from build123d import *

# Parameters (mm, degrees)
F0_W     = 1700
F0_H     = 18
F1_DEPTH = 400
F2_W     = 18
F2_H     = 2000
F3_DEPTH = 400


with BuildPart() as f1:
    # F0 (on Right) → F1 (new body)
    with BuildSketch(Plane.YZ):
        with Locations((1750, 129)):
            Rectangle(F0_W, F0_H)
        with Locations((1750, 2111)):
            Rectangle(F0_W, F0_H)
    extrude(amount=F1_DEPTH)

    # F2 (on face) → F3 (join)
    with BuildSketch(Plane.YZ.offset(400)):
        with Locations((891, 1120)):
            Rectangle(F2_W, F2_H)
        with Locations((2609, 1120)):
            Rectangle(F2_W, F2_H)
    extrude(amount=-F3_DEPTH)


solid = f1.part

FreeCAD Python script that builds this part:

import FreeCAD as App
import Part
import Sketcher

doc = App.newDocument("Part")
body = doc.addObject("PartDesign::Body", "Body")
body.AllowCompound = True

# Sketch on YZ plane
sketch1 = doc.addObject("Sketcher::SketchObject", "Sketch")
body.addObject(sketch1)
sketch1.AttachmentSupport = (doc.YZ_Plane, [""])
sketch1.MapMode = "FlatFace"
sketch1.addGeometry(Part.LineSegment(App.Vector(900, 138, 0), App.Vector(900, 120, 0)), False)
sketch1.addGeometry(Part.LineSegment(App.Vector(900, 120, 0), App.Vector(2600, 120, 0)), False)
sketch1.addGeometry(Part.LineSegment(App.Vector(2600, 120, 0), App.Vector(2600, 138, 0)), False)
sketch1.addGeometry(Part.LineSegment(App.Vector(2600, 138, 0), App.Vector(900, 138, 0)), False)
sketch1.addGeometry(Part.LineSegment(App.Vector(900, 2120, 0), App.Vector(900, 2102, 0)), False)
sketch1.addGeometry(Part.LineSegment(App.Vector(900, 2102, 0), App.Vector(2600, 2102, 0)), False)
sketch1.addGeometry(Part.LineSegment(App.Vector(2600, 2102, 0), App.Vector(2600, 2120, 0)), False)
sketch1.addGeometry(Part.LineSegment(App.Vector(2600, 2120, 0), App.Vector(900, 2120, 0)), False)
sketch1.addConstraint(Sketcher.Constraint("Coincident", 0, 2, 1, 1))
sketch1.addConstraint(Sketcher.Constraint("Coincident", 1, 2, 2, 1))
sketch1.addConstraint(Sketcher.Constraint("Coincident", 2, 2, 3, 1))
sketch1.addConstraint(Sketcher.Constraint("Coincident", 3, 2, 0, 1))
sketch1.addConstraint(Sketcher.Constraint("Coincident", 4, 2, 5, 1))
sketch1.addConstraint(Sketcher.Constraint("Coincident", 5, 2, 6, 1))
sketch1.addConstraint(Sketcher.Constraint("Coincident", 6, 2, 7, 1))
sketch1.addConstraint(Sketcher.Constraint("Coincident", 7, 2, 4, 1))
sketch1.addConstraint(Sketcher.Constraint("Vertical", 0))
sketch1.addConstraint(Sketcher.Constraint("Horizontal", 1))
sketch1.addConstraint(Sketcher.Constraint("Vertical", 2))
sketch1.addConstraint(Sketcher.Constraint("Horizontal", 3))
sketch1.addConstraint(Sketcher.Constraint("Vertical", 4))
sketch1.addConstraint(Sketcher.Constraint("Horizontal", 5))
sketch1.addConstraint(Sketcher.Constraint("Vertical", 6))
sketch1.addConstraint(Sketcher.Constraint("Horizontal", 7))
sketch1.addConstraint(Sketcher.Constraint("Vertical", 3, 2, 4, 2))
sketch1.addConstraint(Sketcher.Constraint("Vertical", 2, 2, 5, 2))
sketch1.addConstraint(Sketcher.Constraint("Equal", 2, 4))
sketch1.addConstraint(Sketcher.Constraint("DistanceX", 1, 1, 1, 2, 1700.0))
sketch1.addConstraint(Sketcher.Constraint("DistanceY", 0, 2, 0, 1, 18.0))
sketch1.addConstraint(Sketcher.Constraint("DistanceX", -1, 1, 0, 2, 900.0))
sketch1.addConstraint(Sketcher.Constraint("DistanceY", -1, 1, 0, 2, 120.0))
sketch1.addConstraint(Sketcher.Constraint("DistanceY", -1, 1, 4, 2, 2102.0))
pad1 = doc.addObject("PartDesign::Pad", "Pad")
body.addObject(pad1)
pad1.Profile = sketch1
pad1.Length = 400

# Sketch on YZ plane
sketch2 = doc.addObject("Sketcher::SketchObject", "Sketch001")
body.addObject(sketch2)
sketch2.AttachmentSupport = (doc.YZ_Plane, [""])
sketch2.MapMode = "FlatFace"
sketch2.AttachmentOffset = App.Placement(App.Vector(0, 0, 400), App.Rotation())
sketch2.addGeometry(Part.LineSegment(App.Vector(882, 2120, 0), App.Vector(882, 120, 0)), False)
sketch2.addGeometry(Part.LineSegment(App.Vector(882, 120, 0), App.Vector(900, 120, 0)), False)
sketch2.addGeometry(Part.LineSegment(App.Vector(900, 120, 0), App.Vector(900, 2120, 0)), False)
sketch2.addGeometry(Part.LineSegment(App.Vector(900, 2120, 0), App.Vector(882, 2120, 0)), False)
sketch2.addGeometry(Part.LineSegment(App.Vector(2600, 2120, 0), App.Vector(2600, 120, 0)), False)
sketch2.addGeometry(Part.LineSegment(App.Vector(2600, 120, 0), App.Vector(2618, 120, 0)), False)
sketch2.addGeometry(Part.LineSegment(App.Vector(2618, 120, 0), App.Vector(2618, 2120, 0)), False)
sketch2.addGeometry(Part.LineSegment(App.Vector(2618, 2120, 0), App.Vector(2600, 2120, 0)), False)
sketch2.addConstraint(Sketcher.Constraint("Coincident", 0, 2, 1, 1))
sketch2.addConstraint(Sketcher.Constraint("Coincident", 1, 2, 2, 1))
sketch2.addConstraint(Sketcher.Constraint("Coincident", 2, 2, 3, 1))
sketch2.addConstraint(Sketcher.Constraint("Coincident", 3, 2, 0, 1))
sketch2.addConstraint(Sketcher.Constraint("Coincident", 4, 2, 5, 1))
sketch2.addConstraint(Sketcher.Constraint("Coincident", 5, 2, 6, 1))
sketch2.addConstraint(Sketcher.Constraint("Coincident", 6, 2, 7, 1))
sketch2.addConstraint(Sketcher.Constraint("Coincident", 7, 2, 4, 1))
sketch2.addConstraint(Sketcher.Constraint("Vertical", 0))
sketch2.addConstraint(Sketcher.Constraint("Horizontal", 1))
sketch2.addConstraint(Sketcher.Constraint("Vertical", 2))
sketch2.addConstraint(Sketcher.Constraint("Horizontal", 3))
sketch2.addConstraint(Sketcher.Constraint("Vertical", 4))
sketch2.addConstraint(Sketcher.Constraint("Horizontal", 5))
sketch2.addConstraint(Sketcher.Constraint("Vertical", 6))
sketch2.addConstraint(Sketcher.Constraint("Horizontal", 7))
sketch2.addConstraint(Sketcher.Constraint("Horizontal", 1, 2, 4, 2))
sketch2.addConstraint(Sketcher.Constraint("Horizontal", 3, 2, 6, 2))
sketch2.addConstraint(Sketcher.Constraint("Equal", 3, 5))
sketch2.addConstraint(Sketcher.Constraint("DistanceX", 1, 1, 1, 2, 18.0))
sketch2.addConstraint(Sketcher.Constraint("DistanceY", 0, 2, 0, 1, 2000.0))
sketch2.addConstraint(Sketcher.Constraint("DistanceX", -1, 1, 0, 2, 882.0))
sketch2.addConstraint(Sketcher.Constraint("DistanceY", -1, 1, 0, 2, 120.0))
sketch2.addConstraint(Sketcher.Constraint("DistanceX", -1, 1, 4, 2, 2600.0))
pad2 = doc.addObject("PartDesign::Pad", "Pad001")
body.addObject(pad2)
pad2.Profile = sketch2
pad2.Length = 400
pad2.Reversed = True

doc.recompute()
